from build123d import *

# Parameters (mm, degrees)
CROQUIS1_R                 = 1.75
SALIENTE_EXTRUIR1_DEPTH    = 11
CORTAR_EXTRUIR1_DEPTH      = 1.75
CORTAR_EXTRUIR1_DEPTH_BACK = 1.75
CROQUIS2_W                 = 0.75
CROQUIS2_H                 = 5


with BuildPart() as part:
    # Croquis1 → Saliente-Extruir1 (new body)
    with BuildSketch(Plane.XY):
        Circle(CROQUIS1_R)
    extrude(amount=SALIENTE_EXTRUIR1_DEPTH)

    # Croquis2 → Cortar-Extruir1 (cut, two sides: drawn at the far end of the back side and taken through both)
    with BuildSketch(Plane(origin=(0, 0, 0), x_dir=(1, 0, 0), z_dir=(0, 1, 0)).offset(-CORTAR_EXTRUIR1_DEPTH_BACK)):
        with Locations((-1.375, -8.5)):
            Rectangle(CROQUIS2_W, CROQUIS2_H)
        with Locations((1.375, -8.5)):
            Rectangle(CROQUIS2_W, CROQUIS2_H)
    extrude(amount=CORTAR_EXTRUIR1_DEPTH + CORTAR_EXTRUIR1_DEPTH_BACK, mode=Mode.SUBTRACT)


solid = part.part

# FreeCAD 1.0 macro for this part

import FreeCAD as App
import Part
import Sketcher
from FreeCAD import Vector


def add_polygon(sketch, points):
    """Adds a closed chain of lines whose ends are joined by coincident constraints."""
    first, n = sketch.GeometryCount, len(points)
    for a, b in zip(points, points[1:] + points[:1]):
        sketch.addGeometry(Part.LineSegment(App.Vector(*a, 0), App.Vector(*b, 0)), False)
    for i in range(n):
        sketch.addConstraint(Sketcher.Constraint("Coincident", first + i, 2, first + (i + 1) % n, 1))

doc = App.newDocument("Part")
body = doc.addObject("PartDesign::Body", "Body")

# Sketch on XY plane
sketch1 = body.newObject("Sketcher::SketchObject", "Sketch")
sketch1.AttachmentSupport = (doc.getObject("XY_Plane"), [""])
sketch1.MapMode = "FlatFace"
sketch1.addGeometry(Part.Circle(Vector(0, 0, 0), Vector(0, 0, 1), 1.8), False)
sketch1.addConstraint([
    Sketcher.Constraint("Coincident", 0, 3, -1, 1),
    Sketcher.Constraint("Diameter", 0, 3.5),
])
pad1 = body.newObject("PartDesign::Pad", "Pad")
pad1.Profile = sketch1
pad1.Length = 11

# Sketch on XZ plane
sketch2 = body.newObject("Sketcher::SketchObject", "Sketch001")
sketch2.AttachmentSupport = (doc.getObject("XZ_Plane"), [""])
sketch2.MapMode = "FlatFace"
add_polygon(sketch2, [(-1.8, 6), (-1.8, 11), (-1, 11), (-1, 6)])  # lines 0-3
add_polygon(sketch2, [(1, 6), (1, 11), (1.8, 11), (1.8, 6)])  # lines 4-7
sketch2.addConstraint([
    Sketcher.Constraint("Vertical", 0),
    Sketcher.Constraint("Horizontal", 1),
    Sketcher.Constraint("Vertical", 2),
    Sketcher.Constraint("Horizontal", 3),
    Sketcher.Constraint("Vertical", 4),
    Sketcher.Constraint("Horizontal", 5),
    Sketcher.Constraint("Vertical", 6),
    Sketcher.Constraint("Horizontal", 7),
    Sketcher.Constraint("Symmetric", 1, 2, 4, 2, -2),
    Sketcher.Constraint("Symmetric", 3, 2, 6, 2, -2),
    Sketcher.Constraint("DistanceY", 0, 1, 0, 2, 5.0),
    Sketcher.Constraint("DistanceY", -1, 1, 0, 2, 11.0),
    Sketcher.Constraint("DistanceX", 1, 2, -1, 1, 1.0),
    Sketcher.Constraint("DistanceX", 1, 1, 1, 2, 0.75),
])
pocket1 = body.newObject("PartDesign::Pocket", "Pocket")
pocket1.Profile = sketch2
pocket1.Type = "ThroughAll"
pocket1.Midplane = True

doc.recompute()
